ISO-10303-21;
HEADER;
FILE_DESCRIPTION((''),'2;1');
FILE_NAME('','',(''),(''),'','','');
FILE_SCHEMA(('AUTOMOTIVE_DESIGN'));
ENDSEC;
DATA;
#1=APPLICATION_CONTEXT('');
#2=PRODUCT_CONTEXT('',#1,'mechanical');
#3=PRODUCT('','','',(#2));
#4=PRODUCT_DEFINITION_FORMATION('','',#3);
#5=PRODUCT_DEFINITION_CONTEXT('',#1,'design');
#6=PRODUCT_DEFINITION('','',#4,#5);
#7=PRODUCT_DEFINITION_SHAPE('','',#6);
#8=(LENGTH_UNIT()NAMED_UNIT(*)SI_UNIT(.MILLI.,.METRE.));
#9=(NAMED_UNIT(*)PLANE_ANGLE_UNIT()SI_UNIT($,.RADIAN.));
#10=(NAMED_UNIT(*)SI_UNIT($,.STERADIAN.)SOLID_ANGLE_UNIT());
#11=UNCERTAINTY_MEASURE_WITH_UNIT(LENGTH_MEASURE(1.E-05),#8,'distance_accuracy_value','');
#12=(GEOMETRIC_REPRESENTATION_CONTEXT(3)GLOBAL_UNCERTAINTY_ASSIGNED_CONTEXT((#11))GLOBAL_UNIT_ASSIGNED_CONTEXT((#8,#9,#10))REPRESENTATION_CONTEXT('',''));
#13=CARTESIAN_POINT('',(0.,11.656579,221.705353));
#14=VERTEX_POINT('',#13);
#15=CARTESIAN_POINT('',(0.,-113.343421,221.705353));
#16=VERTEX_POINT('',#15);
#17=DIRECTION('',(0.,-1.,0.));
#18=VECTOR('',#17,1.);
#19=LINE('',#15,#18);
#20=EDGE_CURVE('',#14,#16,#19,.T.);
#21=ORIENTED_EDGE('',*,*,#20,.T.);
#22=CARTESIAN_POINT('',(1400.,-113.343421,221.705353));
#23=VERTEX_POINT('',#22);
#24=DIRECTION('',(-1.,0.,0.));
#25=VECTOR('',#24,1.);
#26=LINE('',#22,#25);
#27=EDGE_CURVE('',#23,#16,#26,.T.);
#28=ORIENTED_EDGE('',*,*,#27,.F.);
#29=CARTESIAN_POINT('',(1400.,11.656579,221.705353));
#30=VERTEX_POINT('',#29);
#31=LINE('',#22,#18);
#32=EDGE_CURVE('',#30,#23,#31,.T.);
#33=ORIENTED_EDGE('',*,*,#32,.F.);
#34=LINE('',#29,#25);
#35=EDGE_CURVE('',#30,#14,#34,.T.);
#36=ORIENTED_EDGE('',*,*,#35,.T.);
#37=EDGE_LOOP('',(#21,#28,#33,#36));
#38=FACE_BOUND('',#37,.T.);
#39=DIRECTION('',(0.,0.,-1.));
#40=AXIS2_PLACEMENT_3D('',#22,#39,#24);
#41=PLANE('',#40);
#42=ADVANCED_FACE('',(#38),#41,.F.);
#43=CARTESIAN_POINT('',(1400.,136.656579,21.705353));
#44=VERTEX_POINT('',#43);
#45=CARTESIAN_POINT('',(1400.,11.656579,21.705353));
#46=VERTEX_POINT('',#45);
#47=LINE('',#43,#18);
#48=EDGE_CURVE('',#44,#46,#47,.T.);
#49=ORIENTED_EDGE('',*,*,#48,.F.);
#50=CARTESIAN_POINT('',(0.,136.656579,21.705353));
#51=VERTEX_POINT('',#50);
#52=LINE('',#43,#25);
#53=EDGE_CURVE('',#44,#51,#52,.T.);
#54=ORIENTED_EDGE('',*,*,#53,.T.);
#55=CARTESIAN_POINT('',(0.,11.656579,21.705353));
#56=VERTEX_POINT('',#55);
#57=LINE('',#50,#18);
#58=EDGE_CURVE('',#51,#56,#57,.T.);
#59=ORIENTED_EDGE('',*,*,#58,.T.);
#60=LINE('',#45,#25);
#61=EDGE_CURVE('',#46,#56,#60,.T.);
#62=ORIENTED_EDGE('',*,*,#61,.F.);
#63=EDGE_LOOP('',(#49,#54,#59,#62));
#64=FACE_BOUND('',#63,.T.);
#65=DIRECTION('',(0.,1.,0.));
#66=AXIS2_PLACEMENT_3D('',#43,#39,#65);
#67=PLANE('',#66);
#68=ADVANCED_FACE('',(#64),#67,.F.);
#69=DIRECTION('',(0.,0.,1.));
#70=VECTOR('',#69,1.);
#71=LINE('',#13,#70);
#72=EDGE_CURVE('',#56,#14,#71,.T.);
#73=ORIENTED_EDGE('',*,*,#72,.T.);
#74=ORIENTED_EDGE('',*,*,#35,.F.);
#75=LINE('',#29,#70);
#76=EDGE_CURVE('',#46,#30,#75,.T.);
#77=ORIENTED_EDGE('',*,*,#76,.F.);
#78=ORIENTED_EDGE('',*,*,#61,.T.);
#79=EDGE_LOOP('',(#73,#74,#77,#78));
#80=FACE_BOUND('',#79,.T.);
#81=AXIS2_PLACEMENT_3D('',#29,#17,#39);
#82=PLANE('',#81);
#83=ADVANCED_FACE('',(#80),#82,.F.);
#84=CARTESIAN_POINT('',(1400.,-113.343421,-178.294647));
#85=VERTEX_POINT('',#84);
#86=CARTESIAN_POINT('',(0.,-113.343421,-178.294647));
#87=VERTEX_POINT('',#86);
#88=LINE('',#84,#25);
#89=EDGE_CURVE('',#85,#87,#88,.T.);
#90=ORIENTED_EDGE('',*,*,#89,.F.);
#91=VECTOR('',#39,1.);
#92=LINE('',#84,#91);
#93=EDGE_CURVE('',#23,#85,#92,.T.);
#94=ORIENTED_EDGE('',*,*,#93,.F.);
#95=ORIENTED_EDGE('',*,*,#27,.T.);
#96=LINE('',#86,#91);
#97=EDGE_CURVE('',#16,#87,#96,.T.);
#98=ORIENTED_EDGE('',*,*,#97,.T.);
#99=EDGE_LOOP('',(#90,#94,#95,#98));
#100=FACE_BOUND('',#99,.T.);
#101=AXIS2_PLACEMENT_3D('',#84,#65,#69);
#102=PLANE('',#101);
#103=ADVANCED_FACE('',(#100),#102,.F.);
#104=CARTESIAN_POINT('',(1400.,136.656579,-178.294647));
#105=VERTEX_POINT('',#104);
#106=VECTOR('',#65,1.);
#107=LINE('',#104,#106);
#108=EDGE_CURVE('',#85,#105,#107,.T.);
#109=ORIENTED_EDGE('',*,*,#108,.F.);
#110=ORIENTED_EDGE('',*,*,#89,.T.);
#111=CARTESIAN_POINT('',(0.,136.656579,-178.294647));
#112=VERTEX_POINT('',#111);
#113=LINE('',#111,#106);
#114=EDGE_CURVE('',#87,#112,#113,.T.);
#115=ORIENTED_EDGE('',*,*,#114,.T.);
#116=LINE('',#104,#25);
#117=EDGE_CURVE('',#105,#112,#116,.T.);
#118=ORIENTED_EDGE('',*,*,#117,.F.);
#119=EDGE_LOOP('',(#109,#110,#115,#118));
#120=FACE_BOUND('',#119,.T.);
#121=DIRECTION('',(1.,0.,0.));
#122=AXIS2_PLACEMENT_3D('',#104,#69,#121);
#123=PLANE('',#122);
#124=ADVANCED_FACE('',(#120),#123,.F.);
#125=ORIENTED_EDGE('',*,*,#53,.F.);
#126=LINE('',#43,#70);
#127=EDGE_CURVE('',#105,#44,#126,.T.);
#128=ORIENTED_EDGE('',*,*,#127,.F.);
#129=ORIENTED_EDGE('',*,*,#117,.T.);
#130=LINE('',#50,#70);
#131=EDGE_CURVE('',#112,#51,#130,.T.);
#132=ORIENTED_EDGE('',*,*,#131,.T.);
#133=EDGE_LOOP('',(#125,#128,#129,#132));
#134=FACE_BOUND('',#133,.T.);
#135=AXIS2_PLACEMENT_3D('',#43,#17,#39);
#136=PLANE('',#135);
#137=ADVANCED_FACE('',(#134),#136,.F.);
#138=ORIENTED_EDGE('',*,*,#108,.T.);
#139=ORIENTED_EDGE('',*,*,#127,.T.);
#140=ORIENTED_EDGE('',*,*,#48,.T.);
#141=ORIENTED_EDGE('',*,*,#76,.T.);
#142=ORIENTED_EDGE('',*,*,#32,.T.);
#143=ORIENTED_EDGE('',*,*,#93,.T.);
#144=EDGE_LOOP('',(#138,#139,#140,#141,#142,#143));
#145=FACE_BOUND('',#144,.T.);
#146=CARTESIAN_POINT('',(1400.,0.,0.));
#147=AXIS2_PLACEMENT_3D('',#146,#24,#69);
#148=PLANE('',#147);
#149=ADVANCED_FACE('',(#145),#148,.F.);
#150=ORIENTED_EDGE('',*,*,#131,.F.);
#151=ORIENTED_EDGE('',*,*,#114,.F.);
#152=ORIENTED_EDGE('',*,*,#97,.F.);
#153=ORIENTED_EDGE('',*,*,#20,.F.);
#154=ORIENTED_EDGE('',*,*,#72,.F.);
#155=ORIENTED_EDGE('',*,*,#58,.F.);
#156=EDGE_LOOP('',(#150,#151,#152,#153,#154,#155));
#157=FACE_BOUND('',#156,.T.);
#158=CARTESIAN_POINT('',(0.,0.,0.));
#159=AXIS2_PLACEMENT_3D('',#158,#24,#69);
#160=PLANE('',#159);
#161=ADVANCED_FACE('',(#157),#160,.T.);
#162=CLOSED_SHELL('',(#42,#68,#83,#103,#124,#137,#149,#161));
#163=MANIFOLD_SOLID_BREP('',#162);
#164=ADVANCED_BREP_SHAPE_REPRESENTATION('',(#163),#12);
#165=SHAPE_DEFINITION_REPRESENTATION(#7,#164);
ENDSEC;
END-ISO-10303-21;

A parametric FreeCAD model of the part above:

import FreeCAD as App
import Part
import Sketcher
Q = App.Units.Quantity


def add_polygon(sketch, points):
    """Adds a closed chain of lines whose ends are joined by coincident constraints."""
    first, n = sketch.GeometryCount, len(points)
    for a, b in zip(points, points[1:] + points[:1]):
        sketch.addGeometry(Part.LineSegment(App.Vector(*a, 0), App.Vector(*b, 0)), False)
    for i in range(n):
        sketch.addConstraint(Sketcher.Constraint("Coincident", first + i, 2, first + (i + 1) % n, 1))

doc = App.newDocument("Part")
params = doc.addObject("Spreadsheet::Sheet", "Params")
for row, (alias, value) in enumerate([
    ("sketch1_width", "250 mm"),
    ("sketch1_height", "200 mm"),
    ("pad1_length", "1400 mm"),
], start=1):
    params.set(f"A{row}", alias)
    params.set(f"B{row}", "=" + value)
    params.setAlias(f"B{row}", alias)

body = doc.addObject("PartDesign::Body", "Body")

# Sketch on YZ plane
sketch1 = body.newObject("Sketcher::SketchObject", "Sketch")
sketch1.AttachmentSupport = (doc.getObject("YZ_Plane"), [""])
sketch1.MapMode = "FlatFace"
add_polygon(sketch1, [(-113.343421, -178.294647), (136.656579, -178.294647), (136.656579, 21.705353), (11.656579, 21.705353), (11.656579, 221.705353), (-113.343421, 221.705353)])  # lines 0-5
sketch1.addConstraint([
    Sketcher.Constraint("Horizontal", 0),
    Sketcher.Constraint("Vertical", 1),
    Sketcher.Constraint("Horizontal", 2),
    Sketcher.Constraint("Vertical", 3),
    Sketcher.Constraint("Horizontal", 4),
    Sketcher.Constraint("Vertical", 5),
    Sketcher.Constraint("Equal", 2, 4),
    Sketcher.Constraint("Equal", 1, 3),
    Sketcher.Constraint("DistanceX", 0, 1, 0, 2, Q("250 mm")),
    Sketcher.Constraint("DistanceY", 1, 1, 1, 2, Q("200 mm")),
    Sketcher.Constraint("DistanceX", -1, 1, 0, 2, Q("136.656579 mm")),
    Sketcher.Constraint("DistanceY", 0, 2, -1, 1, Q("178.294647 mm")),
])
sketch1.setExpression("Constraints[14]", "Params.sketch1_width")
sketch1.setExpression("Constraints[15]", "Params.sketch1_height")
pad1 = body.newObject("PartDesign::Pad", "Pad")
pad1.Profile = sketch1
pad1.setExpression("Length", "Params.pad1_length")

doc.recompute()
